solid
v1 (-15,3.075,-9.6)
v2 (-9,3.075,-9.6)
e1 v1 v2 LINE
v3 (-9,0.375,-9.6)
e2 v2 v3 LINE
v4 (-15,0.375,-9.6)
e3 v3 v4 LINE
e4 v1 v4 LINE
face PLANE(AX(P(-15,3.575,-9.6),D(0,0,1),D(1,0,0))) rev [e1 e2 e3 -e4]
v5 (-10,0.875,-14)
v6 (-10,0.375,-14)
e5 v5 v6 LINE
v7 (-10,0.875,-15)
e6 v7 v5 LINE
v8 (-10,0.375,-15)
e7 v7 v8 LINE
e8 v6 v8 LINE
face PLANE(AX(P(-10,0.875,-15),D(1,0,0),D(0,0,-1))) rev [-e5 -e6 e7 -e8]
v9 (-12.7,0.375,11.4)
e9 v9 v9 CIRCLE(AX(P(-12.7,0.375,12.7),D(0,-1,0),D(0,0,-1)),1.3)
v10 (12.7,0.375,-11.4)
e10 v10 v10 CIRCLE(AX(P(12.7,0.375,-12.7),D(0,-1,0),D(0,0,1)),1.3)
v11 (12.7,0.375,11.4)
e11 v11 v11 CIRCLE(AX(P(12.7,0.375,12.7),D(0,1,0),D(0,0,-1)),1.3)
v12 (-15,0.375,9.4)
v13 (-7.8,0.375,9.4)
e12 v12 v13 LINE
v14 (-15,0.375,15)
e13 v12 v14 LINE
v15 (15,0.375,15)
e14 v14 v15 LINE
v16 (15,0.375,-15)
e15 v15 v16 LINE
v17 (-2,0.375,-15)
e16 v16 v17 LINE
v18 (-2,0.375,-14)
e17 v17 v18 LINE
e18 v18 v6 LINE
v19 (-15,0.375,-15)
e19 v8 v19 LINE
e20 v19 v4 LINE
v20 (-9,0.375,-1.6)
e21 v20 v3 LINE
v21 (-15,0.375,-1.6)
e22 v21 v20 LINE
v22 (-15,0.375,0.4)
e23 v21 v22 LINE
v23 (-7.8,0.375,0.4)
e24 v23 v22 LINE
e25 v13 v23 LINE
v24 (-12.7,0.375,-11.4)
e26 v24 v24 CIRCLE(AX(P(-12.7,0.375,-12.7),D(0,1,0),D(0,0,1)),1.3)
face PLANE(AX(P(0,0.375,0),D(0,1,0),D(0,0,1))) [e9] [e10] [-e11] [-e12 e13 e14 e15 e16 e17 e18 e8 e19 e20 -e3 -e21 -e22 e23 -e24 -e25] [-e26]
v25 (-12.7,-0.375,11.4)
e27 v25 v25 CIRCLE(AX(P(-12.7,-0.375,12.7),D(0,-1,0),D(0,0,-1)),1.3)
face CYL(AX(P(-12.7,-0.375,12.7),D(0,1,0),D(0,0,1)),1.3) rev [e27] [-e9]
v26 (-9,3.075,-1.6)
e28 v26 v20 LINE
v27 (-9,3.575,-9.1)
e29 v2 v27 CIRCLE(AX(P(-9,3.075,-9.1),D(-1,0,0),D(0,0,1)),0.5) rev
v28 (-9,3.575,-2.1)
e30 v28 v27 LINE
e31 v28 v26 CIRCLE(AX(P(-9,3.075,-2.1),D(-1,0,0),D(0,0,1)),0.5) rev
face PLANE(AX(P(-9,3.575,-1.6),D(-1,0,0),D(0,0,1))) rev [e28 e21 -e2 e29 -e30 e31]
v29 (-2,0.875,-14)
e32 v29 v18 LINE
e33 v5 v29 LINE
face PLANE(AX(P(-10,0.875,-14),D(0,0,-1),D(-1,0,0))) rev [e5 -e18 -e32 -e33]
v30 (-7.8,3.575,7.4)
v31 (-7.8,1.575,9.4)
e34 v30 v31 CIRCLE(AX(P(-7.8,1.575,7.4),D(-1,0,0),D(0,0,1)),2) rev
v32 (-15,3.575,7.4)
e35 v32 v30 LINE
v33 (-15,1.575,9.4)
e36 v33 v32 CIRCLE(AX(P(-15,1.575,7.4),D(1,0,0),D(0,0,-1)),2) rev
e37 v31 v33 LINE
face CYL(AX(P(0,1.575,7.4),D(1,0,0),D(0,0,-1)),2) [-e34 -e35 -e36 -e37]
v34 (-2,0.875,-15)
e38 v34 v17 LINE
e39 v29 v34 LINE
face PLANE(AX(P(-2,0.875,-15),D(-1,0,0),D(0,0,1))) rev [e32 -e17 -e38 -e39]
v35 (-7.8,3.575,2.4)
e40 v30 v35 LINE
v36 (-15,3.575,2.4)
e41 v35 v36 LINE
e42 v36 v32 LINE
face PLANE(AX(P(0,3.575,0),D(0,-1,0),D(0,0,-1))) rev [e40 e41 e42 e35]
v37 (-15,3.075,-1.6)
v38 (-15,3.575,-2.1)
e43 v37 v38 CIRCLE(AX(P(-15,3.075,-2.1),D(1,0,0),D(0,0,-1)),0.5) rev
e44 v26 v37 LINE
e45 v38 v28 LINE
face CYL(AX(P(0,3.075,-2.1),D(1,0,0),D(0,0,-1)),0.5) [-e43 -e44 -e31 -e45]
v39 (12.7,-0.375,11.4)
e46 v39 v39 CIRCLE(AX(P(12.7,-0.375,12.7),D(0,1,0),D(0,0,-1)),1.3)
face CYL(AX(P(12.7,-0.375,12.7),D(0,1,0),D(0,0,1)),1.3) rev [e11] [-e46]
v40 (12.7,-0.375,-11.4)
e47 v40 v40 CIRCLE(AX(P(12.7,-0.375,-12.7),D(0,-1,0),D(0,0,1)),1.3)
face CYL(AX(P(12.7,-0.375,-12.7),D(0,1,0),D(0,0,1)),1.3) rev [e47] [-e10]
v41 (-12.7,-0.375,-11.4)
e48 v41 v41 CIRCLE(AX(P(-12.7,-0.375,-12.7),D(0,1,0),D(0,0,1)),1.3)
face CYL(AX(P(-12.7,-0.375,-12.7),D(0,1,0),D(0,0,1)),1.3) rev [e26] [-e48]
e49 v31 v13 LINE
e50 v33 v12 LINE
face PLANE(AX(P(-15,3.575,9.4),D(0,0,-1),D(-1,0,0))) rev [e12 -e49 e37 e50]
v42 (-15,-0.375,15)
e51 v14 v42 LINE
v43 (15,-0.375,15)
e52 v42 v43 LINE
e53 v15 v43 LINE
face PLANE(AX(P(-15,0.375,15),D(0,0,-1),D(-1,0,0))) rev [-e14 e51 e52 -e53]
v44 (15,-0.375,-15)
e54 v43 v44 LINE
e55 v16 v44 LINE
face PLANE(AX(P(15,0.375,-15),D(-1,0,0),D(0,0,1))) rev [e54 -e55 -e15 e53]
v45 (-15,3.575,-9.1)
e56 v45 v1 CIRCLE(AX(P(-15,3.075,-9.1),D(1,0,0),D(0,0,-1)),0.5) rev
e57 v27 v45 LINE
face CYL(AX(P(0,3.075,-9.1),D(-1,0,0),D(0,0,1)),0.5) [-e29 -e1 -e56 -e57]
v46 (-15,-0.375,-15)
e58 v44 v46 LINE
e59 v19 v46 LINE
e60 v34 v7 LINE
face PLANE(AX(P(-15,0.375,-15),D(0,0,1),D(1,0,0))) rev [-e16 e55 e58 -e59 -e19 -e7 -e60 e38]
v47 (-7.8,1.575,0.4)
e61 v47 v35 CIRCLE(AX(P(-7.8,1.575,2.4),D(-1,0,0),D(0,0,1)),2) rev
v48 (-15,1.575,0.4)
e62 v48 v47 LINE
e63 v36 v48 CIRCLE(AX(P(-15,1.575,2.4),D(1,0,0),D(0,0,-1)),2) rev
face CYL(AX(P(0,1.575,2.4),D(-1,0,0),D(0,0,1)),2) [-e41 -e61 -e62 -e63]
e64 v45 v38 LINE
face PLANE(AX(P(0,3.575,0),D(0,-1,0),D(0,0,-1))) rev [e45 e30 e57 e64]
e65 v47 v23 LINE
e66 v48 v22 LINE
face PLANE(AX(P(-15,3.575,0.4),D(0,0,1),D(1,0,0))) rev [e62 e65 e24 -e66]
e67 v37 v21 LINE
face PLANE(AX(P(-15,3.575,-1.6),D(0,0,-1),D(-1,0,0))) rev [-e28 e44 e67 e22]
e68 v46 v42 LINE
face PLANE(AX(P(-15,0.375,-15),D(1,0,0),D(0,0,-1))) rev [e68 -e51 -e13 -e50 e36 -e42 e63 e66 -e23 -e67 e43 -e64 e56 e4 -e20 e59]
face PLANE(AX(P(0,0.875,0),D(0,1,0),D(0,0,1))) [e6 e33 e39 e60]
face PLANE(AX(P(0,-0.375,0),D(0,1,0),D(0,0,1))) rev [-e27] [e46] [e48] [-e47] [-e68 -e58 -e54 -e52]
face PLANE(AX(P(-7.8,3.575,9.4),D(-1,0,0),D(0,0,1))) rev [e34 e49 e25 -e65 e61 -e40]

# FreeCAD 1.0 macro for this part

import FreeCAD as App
import Part
import Sketcher


def edges_at(feature, points):
    """Names of the edges that pass closest to the given points."""
    edges = feature.Shape.Edges
    near = lambda p: min(range(len(edges)), key=lambda i: edges[i].distToShape(Part.Vertex(*p))[0])
    return sorted({f"Edge{near(p) + 1}" for p in points})

doc = App.newDocument("Part")
body = doc.addObject("PartDesign::Body", "Body")

# Sketch on XZ plane
sketch1 = body.newObject("Sketcher::SketchObject", "Sketch")
sketch1.AttachmentSupport = (doc.getObject("XZ_Plane"), [""])
sketch1.MapMode = "FlatFace"
sketch1.addGeometry([
    Part.LineSegment(App.Vector(-15, -15, 0), App.Vector(-15, 15, 0)),
    Part.LineSegment(App.Vector(-15, 15, 0), App.Vector(15, 15, 0)),
    Part.LineSegment(App.Vector(15, 15, 0), App.Vector(15, -15, 0)),
    Part.LineSegment(App.Vector(15, -15, 0), App.Vector(-15, -15, 0)),
], False)
sketch1.addConstraint([
    Sketcher.Constraint("Coincident", 0, 2, 1, 1),
    Sketcher.Constraint("Coincident", 1, 2, 2, 1),
    Sketcher.Constraint("Coincident", 2, 2, 3, 1),
    Sketcher.Constraint("Coincident", 3, 2, 0, 1),
    Sketcher.Constraint("Vertical", 0),
    Sketcher.Constraint("Horizontal", 1),
    Sketcher.Constraint("Vertical", 2),
    Sketcher.Constraint("Horizontal", 3),
    Sketcher.Constraint("Symmetric", 0, 2, 2, 2, -1, 1),
    Sketcher.Constraint("Equal", 3, 0),
    Sketcher.Constraint("DistanceX", 1, 1, 1, 2, 30.0),
])
pad1 = body.newObject("PartDesign::Pad", "Pad")
pad1.Profile = sketch1
pad1.Length = 0.75
pad1.Midplane = True

# Sketch on XZ plane
sketch2 = body.newObject("Sketcher::SketchObject", "Sketch001")
sketch2.AttachmentSupport = (doc.getObject("XZ_Plane"), [""])
sketch2.MapMode = "FlatFace"
sketch2.AttachmentOffset = App.Placement(App.Vector(0, 0, -0.375), App.Rotation())
sketch2.addGeometry(Part.Circle(App.Vector(-12.7, -12.7, 0), App.Vector(0, 0, 1), 1.3), False)
sketch2.addConstraint([
    Sketcher.Constraint("Diameter", 0, 2.6),
    Sketcher.Constraint("DistanceX", 0, 3, -1, 1, 12.7),
    Sketcher.Constraint("DistanceY", 0, 3, -1, 1, 12.7),
])
pocket1 = body.newObject("PartDesign::Pocket", "Pocket")
pocket1.Profile = sketch2
pocket1.Type = "ThroughAll"
pocket1.Reversed = True
doc.recompute()

mirrored = body.newObject("PartDesign::Mirrored", "Mirrored")
mirrored.Originals = [pocket1]
mirrored.MirrorPlane = (doc.getObject("YZ_Plane"), [""])
body.Tip = mirrored
doc.recompute()

mirrored2 = body.newObject("PartDesign::Mirrored", "Mirrored001")
mirrored2.Originals = [pocket1]
mirrored2.MirrorPlane = (doc.getObject("XY_Plane"), [""])
body.Tip = mirrored2

# Sketch on XZ plane
sketch3 = body.newObject("Sketcher::SketchObject", "Sketch002")
sketch3.AttachmentSupport = (doc.getObject("XZ_Plane"), [""])
sketch3.MapMode = "FlatFace"
sketch3.AttachmentOffset = App.Placement(App.Vector(0, 0, -0.375), App.Rotation())
sketch3.addGeometry(Part.Circle(App.Vector(12.7, 12.7, 0), App.Vector(0, 0, 1), 1.3), False)
sketch3.addConstraint([
    Sketcher.Constraint("Diameter", 0, 2.6),
    Sketcher.Constraint("DistanceX", -1, 1, 0, 3, 12.7),
    Sketcher.Constraint("DistanceY", -1, 1, 0, 3, 12.7),
])
pocket2 = body.newObject("PartDesign::Pocket", "Pocket001")
pocket2.Profile = sketch3
pocket2.Type = "ThroughAll"
pocket2.Reversed = True

# Sketch on XZ plane
sketch4 = body.newObject("Sketcher::SketchObject", "Sketch003")
sketch4.AttachmentSupport = (doc.getObject("XZ_Plane"), [""])
sketch4.MapMode = "FlatFace"
sketch4.AttachmentOffset = App.Placement(App.Vector(0, 0, -0.375), App.Rotation())
sketch4.addGeometry([
    Part.LineSegment(App.Vector(-15, 0, 0), App.Vector(-15, 9, 0)),  # 0
    Part.LineSegment(App.Vector(-15, 9, 0), App.Vector(-8, 9, 0)),  # 1
    Part.LineSegment(App.Vector(-8, 9, 0), App.Vector(-8, 0, 0)),  # 2
    Part.LineSegment(App.Vector(-8, 0, 0), App.Vector(-15, 0, 0)),  # 3
    Part.LineSegment(App.Vector(-15, -10, 0), App.Vector(-15, -2, 0)),  # 4
    Part.LineSegment(App.Vector(-15, -2, 0), App.Vector(-9, -2, 0)),  # 5
    Part.LineSegment(App.Vector(-9, -2, 0), App.Vector(-9, -10, 0)),  # 6
    Part.LineSegment(App.Vector(-9, -10, 0), App.Vector(-15, -10, 0)),  # 7
], False)
sketch4.addConstraint([
    Sketcher.Constraint("Coincident", 0, 2, 1, 1),
    Sketcher.Constraint("Coincident", 1, 2, 2, 1),
    Sketcher.Constraint("Coincident", 2, 2, 3, 1),
    Sketcher.Constraint("Coincident", 3, 2, 0, 1),
    Sketcher.Constraint("Coincident", 4, 2, 5, 1),
    Sketcher.Constraint("Coincident", 5, 2, 6, 1),
    Sketcher.Constraint("Coincident", 6, 2, 7, 1),
    Sketcher.Constraint("Coincident", 7, 2, 4, 1),
    Sketcher.Constraint("Vertical", 0),
    Sketcher.Constraint("Horizontal", 1),
    Sketcher.Constraint("Vertical", 2),
    Sketcher.Constraint("Horizontal", 3),
    Sketcher.Constraint("Vertical", 4),
    Sketcher.Constraint("Horizontal", 5),
    Sketcher.Constraint("Vertical", 6),
    Sketcher.Constraint("Horizontal", 7),
    Sketcher.Constraint("Vertical", 3, 2, 4, 2),
    Sketcher.Constraint("DistanceX", 5, 1, 5, 2, 6.0),
    Sketcher.Constraint("DistanceY", 0, 1, 0, 2, 9.0),
    Sketcher.Constraint("DistanceY", 4, 1, 4, 2, 8.0),
    Sketcher.Constraint("DistanceX", 1, 1, 1, 2, 7.2),
    Sketcher.Constraint("DistanceX", 0, 2, -1, 1, 15.0),
    Sketcher.Constraint("DistanceY", 4, 2, 3, 2, 2.0),
    Sketcher.Constraint("DistanceY", -1, 1, 0, 2, 9.4),
])
pad2 = body.newObject("PartDesign::Pad", "Pad001")
pad2.Profile = sketch4
pad2.Length = 3.2
pad2.Reversed = True
doc.recompute()

fillet = body.newObject("PartDesign::Fillet", "Fillet")
fillet.Base = (pad2, edges_at(pad2, [(-11.4, 3.575, 9.4), (-11.4, 3.575, 0.4)]))
fillet.Radius = 2
doc.recompute()

fillet2 = body.newObject("PartDesign::Fillet", "Fillet001")
fillet2.Base = (fillet, edges_at(fillet, [(-12, 3.575, -1.6), (-12, 3.575, -9.6)]))
fillet2.Radius = 0.5

# Sketch on XZ plane
sketch5 = body.newObject("Sketcher::SketchObject", "Sketch004")
sketch5.AttachmentSupport = (doc.getObject("XZ_Plane"), [""])
sketch5.MapMode = "FlatFace"
sketch5.AttachmentOffset = App.Placement(App.Vector(0, 0, -0.375), App.Rotation())
sketch5.addGeometry([
    Part.LineSegment(App.Vector(-10, -15, 0), App.Vector(-10, -14, 0)),
    Part.LineSegment(App.Vector(-10, -14, 0), App.Vector(-2, -14, 0)),
    Part.LineSegment(App.Vector(-2, -14, 0), App.Vector(-2, -15, 0)),
    Part.LineSegment(App.Vector(-2, -15, 0), App.Vector(-10, -15, 0)),
], False)
sketch5.addConstraint([
    Sketcher.Constraint("Coincident", 0, 2, 1, 1),
    Sketcher.Constraint("Coincident", 1, 2, 2, 1),
    Sketcher.Constraint("Coincident", 2, 2, 3, 1),
    Sketcher.Constraint("Coincident", 3, 2, 0, 1),
    Sketcher.Constraint("Vertical", 0),
    Sketcher.Constraint("Horizontal", 1),
    Sketcher.Constraint("Vertical", 2),
    Sketcher.Constraint("Horizontal", 3),
    Sketcher.Constraint("DistanceX", 1, 1, 1, 2, 8.0),
    Sketcher.Constraint("DistanceY", 0, 1, 0, 2, 1.0),
    Sketcher.Constraint("DistanceX", 0, 2, -1, 1, 10.0),
    Sketcher.Constraint("DistanceY", 0, 2, -1, 1, 14.0),
])
pad3 = body.newObject("PartDesign::Pad", "Pad002")
pad3.Profile = sketch5
pad3.Length = 1
pad3.Midplane = True

doc.recompute()
